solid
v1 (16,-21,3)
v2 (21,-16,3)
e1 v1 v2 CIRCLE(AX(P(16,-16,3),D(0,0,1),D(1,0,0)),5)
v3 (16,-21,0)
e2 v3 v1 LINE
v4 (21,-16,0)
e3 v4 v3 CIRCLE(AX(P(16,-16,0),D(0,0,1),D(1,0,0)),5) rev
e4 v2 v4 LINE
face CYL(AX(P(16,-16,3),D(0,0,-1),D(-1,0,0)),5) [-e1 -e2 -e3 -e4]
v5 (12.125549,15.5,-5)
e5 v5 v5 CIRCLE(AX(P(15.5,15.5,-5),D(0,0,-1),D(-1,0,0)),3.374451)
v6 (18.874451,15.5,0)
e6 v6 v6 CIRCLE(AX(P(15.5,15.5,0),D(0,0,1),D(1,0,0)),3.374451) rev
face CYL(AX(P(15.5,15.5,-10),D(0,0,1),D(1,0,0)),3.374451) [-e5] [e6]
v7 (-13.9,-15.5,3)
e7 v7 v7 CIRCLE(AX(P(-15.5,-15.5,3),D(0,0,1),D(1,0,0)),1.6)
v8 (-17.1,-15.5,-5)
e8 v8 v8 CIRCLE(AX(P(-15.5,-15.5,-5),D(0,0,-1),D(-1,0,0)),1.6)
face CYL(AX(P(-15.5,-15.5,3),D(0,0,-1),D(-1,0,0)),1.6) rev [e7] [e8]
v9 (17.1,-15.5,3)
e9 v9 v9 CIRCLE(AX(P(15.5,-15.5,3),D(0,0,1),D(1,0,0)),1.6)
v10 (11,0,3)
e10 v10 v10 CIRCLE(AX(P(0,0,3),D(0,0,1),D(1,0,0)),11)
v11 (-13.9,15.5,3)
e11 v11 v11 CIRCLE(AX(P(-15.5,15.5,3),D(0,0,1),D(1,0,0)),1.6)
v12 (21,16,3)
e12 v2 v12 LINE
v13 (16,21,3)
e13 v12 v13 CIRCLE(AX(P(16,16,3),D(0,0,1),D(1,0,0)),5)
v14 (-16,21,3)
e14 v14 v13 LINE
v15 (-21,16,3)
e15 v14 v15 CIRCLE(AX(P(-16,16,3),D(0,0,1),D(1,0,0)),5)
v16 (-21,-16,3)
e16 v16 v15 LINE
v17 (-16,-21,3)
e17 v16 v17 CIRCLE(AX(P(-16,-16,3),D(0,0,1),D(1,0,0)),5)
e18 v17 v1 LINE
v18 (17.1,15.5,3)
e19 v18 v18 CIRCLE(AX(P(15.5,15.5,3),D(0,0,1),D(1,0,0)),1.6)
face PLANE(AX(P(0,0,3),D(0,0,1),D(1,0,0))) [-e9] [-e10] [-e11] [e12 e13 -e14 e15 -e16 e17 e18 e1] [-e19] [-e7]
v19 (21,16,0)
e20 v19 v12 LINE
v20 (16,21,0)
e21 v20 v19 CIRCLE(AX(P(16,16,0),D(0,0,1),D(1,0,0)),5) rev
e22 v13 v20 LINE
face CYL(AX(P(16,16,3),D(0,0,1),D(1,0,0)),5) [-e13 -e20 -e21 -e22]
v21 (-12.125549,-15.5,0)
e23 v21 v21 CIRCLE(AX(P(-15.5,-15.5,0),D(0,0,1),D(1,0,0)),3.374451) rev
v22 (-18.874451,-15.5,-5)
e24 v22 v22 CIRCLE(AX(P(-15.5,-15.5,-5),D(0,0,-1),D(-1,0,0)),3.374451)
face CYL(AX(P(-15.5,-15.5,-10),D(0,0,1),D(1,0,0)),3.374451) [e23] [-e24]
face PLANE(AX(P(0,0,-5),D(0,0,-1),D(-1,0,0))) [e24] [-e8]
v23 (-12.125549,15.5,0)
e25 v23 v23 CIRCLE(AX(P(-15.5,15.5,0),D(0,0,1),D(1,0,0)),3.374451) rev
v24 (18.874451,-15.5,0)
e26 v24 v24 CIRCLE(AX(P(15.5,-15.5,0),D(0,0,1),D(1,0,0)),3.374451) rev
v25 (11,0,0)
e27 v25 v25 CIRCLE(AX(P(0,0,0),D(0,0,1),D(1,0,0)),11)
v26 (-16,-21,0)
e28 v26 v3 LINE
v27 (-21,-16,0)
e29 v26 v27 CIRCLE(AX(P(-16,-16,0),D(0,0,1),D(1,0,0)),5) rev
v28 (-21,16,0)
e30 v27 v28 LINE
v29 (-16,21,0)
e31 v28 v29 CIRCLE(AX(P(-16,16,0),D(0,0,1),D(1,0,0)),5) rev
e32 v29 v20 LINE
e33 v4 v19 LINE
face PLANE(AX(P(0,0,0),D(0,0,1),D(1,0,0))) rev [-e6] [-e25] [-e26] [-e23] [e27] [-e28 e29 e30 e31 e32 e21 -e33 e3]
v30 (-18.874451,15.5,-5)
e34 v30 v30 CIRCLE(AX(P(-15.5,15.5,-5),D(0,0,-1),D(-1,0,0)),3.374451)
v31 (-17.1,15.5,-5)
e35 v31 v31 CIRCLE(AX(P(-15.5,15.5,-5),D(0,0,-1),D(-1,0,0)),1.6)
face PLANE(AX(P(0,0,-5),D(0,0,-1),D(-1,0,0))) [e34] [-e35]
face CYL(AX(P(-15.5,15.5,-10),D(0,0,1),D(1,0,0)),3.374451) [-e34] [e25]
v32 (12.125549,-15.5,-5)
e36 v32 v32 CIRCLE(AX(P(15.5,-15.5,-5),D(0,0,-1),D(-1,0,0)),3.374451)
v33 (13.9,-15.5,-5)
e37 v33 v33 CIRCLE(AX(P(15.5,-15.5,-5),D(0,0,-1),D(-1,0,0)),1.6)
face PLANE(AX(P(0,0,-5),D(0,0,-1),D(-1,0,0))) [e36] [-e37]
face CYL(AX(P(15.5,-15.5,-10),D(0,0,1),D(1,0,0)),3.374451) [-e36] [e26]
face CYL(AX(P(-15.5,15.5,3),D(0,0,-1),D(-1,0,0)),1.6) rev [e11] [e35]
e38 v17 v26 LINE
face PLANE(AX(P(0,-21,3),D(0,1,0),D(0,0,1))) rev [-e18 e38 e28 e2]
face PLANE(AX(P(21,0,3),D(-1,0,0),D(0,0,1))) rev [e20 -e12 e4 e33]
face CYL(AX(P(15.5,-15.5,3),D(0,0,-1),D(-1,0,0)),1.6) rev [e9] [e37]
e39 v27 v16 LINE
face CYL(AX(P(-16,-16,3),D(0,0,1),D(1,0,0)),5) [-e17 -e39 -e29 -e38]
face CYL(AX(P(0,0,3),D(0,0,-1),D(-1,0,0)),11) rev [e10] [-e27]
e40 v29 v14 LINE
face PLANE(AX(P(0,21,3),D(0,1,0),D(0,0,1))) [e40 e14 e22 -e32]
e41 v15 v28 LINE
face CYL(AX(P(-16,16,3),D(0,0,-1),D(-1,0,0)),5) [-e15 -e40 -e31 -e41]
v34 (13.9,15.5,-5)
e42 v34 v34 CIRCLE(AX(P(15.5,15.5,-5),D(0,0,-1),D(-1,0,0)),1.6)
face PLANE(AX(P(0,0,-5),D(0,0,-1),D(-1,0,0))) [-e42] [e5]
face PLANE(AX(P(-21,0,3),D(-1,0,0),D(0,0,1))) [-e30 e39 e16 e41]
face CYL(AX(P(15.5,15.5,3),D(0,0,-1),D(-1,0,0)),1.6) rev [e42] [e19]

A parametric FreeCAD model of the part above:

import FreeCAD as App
import Part
import Sketcher
Q = App.Units.Quantity


def edges_at(feature, points):
    """Names of the edges that pass closest to the given points."""
    edges = feature.Shape.Edges
    near = lambda p: min(range(len(edges)), key=lambda i: edges[i].distToShape(Part.Vertex(*p))[0])
    return sorted({f"Edge{near(p) + 1}" for p in points})

doc = App.newDocument("Part")
params = doc.addObject("Spreadsheet::Sheet", "Params")
for row, (alias, value) in enumerate([
    ("sketch1_diameter", "22 mm"),
    ("sketch1_diameter2", "3.2 mm"),
    ("sketch1_width", "42 mm"),
    ("pad1_length", "3 mm"),
    ("fillet_radius", "5 mm"),
    ("sketch2_diameter", "36 mm"),
    ("sketch2_diameter2", "32 mm"),
    ("pad2_length", "7 mm"),
    ("sketch3_diameter", "36 mm"),
    ("sketch4_diameter", "3.2 mm"),
    ("pad3_length", "10 mm"),
    ("pocket2_length", "5 mm"),
], start=1):
    params.set(f"A{row}", alias)
    params.set(f"B{row}", "=" + value)
    params.setAlias(f"B{row}", alias)

body = doc.addObject("PartDesign::Body", "Body")

# Sketch on XY plane
sketch1 = body.newObject("Sketcher::SketchObject", "Sketch")
sketch1.AttachmentSupport = (doc.getObject("XY_Plane"), [""])
sketch1.MapMode = "FlatFace"
sketch1.addGeometry([
    Part.LineSegment(App.Vector(-21, 21, 0), App.Vector(-21, -21, 0)),  # 0
    Part.LineSegment(App.Vector(-21, -21, 0), App.Vector(21, -21, 0)),  # 1
    Part.LineSegment(App.Vector(21, -21, 0), App.Vector(21, 21, 0)),  # 2
    Part.LineSegment(App.Vector(21, 21, 0), App.Vector(-21, 21, 0)),  # 3
    Part.Circle(App.Vector(-15.5, -15.5, 0), App.Vector(0, 0, 1), 1.6),  # 4
    Part.Circle(App.Vector(15.5, -15.5, 0), App.Vector(0, 0, 1), 1.6),  # 5
    Part.Circle(App.Vector(-15.5, 15.5, 0), App.Vector(0, 0, 1), 1.6),  # 6
    Part.Circle(App.Vector(0, 0, 0), App.Vector(0, 0, 1), 11),  # 7
    Part.Circle(App.Vector(15.5, 15.5, 0), App.Vector(0, 0, 1), 1.6),  # 8
], False)
sketch1.addConstraint([
    Sketcher.Constraint("Coincident", 0, 2, 1, 1),
    Sketcher.Constraint("Coincident", 1, 2, 2, 1),
    Sketcher.Constraint("Coincident", 2, 2, 3, 1),
    Sketcher.Constraint("Coincident", 3, 2, 0, 1),
    Sketcher.Constraint("Vertical", 0),
    Sketcher.Constraint("Horizontal", 1),
    Sketcher.Constraint("Vertical", 2),
    Sketcher.Constraint("Horizontal", 3),
    Sketcher.Constraint("Coincident", 7, 3, -1, 1),
    Sketcher.Constraint("Equal", 4, 5),
    Sketcher.Constraint("Equal", 5, 6),
    Sketcher.Constraint("Equal", 6, 8),
    Sketcher.Constraint("Symmetric", 5, 3, 6, 3, -1, 1),
    Sketcher.Constraint("Symmetric", 4, 3, 8, 3, -1, 1),
    Sketcher.Constraint("Symmetric", 0, 2, 2, 2, -1, 1),
    Sketcher.Constraint("Symmetric", 4, 3, 5, 3, -2),
    Sketcher.Constraint("Equal", 3, 0),
    Sketcher.Constraint("Diameter", 7, Q("22 mm")),
    Sketcher.Constraint("Diameter", 4, Q("3.2 mm")),
    Sketcher.Constraint("DistanceX", 1, 1, 1, 2, Q("42 mm")),
    Sketcher.Constraint("DistanceX", 4, 3, 5, 3, Q("31 mm")),
    Sketcher.Constraint("DistanceY", 4, 3, 6, 3, Q("31 mm")),
])
sketch1.setExpression("Constraints[17]", "Params.sketch1_diameter")
sketch1.setExpression("Constraints[18]", "Params.sketch1_diameter2")
sketch1.setExpression("Constraints[19]", "Params.sketch1_width")
pad1 = body.newObject("PartDesign::Pad", "Pad")
pad1.Profile = sketch1
pad1.setExpression("Length", "Params.pad1_length")
doc.recompute()

fillet = body.newObject("PartDesign::Fillet", "Fillet")
fillet.Base = (pad1, edges_at(pad1, [
    (-21, -21, 1.5),
    (-21, 21, 1.5),
    (21, 21, 1.5),
    (21, -21, 1.5),
]))
fillet.setExpression("Radius", "Params.fillet_radius")

# Sketch on XY plane
sketch2 = body.newObject("Sketcher::SketchObject", "Sketch001")
sketch2.AttachmentSupport = (doc.getObject("XY_Plane"), [""])
sketch2.MapMode = "FlatFace"
sketch2.addGeometry([
    Part.Circle(App.Vector(0, 0, 0), App.Vector(0, 0, 1), 18),
    Part.Circle(App.Vector(0, 0, 0), App.Vector(0, 0, 1), 16),
], False)
sketch2.addConstraint([
    Sketcher.Constraint("Coincident", 0, 3, -1, 1),
    Sketcher.Constraint("Coincident", 1, 3, -1, 1),
    Sketcher.Constraint("Diameter", 0, Q("36 mm")),
    Sketcher.Constraint("Diameter", 1, Q("32 mm")),
])
sketch2.setExpression("Constraints[2]", "Params.sketch2_diameter")
sketch2.setExpression("Constraints[3]", "Params.sketch2_diameter2")
pad2 = body.newObject("PartDesign::Pad", "Pad001")
pad2.Profile = sketch2
pad2.setExpression("Length", "Params.pad2_length")
pad2.Reversed = True

# Sketch on XY plane
sketch3 = body.newObject("Sketcher::SketchObject", "Sketch002")
sketch3.AttachmentSupport = (doc.getObject("XY_Plane"), [""])
sketch3.MapMode = "FlatFace"
sketch3.addGeometry(Part.Circle(App.Vector(0, 0, 0), App.Vector(0, 0, 1), 18), False)
sketch3.addConstraint([
    Sketcher.Constraint("Coincident", 0, 3, -1, 1),
    Sketcher.Constraint("Diameter", 0, Q("36 mm")),
])
sketch3.setExpression("Constraints[1]", "Params.sketch3_diameter")
pocket1 = body.newObject("PartDesign::Pocket", "Pocket")
pocket1.Profile = sketch3
pocket1.Type = "ThroughAll"

# Sketch on XY plane
sketch4 = body.newObject("Sketcher::SketchObject", "Sketch003")
sketch4.AttachmentSupport = (doc.getObject("XY_Plane"), [""])
sketch4.MapMode = "FlatFace"
sketch4.AttachmentOffset = App.Placement(App.Vector(0, 0, -10), App.Rotation())
sketch4.addGeometry([
    Part.Circle(App.Vector(15.5, 15.5, 0), App.Vector(0, 0, 1), 3.4),  # 0
    Part.Circle(App.Vector(15.5, 15.5, 0), App.Vector(0, 0, 1), 1.6),  # 1
    Part.Circle(App.Vector(-15.5, 15.5, 0), App.Vector(0, 0, 1), 3.4),  # 2
    Part.Circle(App.Vector(-15.5, 15.5, 0), App.Vector(0, 0, 1), 1.6),  # 3
    Part.Circle(App.Vector(-15.5, -15.5, 0), App.Vector(0, 0, 1), 3.4),  # 4
    Part.Circle(App.Vector(-15.5, -15.5, 0), App.Vector(0, 0, 1), 1.6),  # 5
    Part.Circle(App.Vector(15.5, -15.5, 0), App.Vector(0, 0, 1), 3.4),  # 6
    Part.Circle(App.Vector(15.5, -15.5, 0), App.Vector(0, 0, 1), 1.6),  # 7
], False)
sketch4.addConstraint([
    Sketcher.Constraint("Coincident", 1, 3, 0, 3),
    Sketcher.Constraint("Coincident", 3, 3, 2, 3),
    Sketcher.Constraint("Coincident", 5, 3, 4, 3),
    Sketcher.Constraint("Coincident", 7, 3, 6, 3),
    Sketcher.Constraint("Equal", 0, 2),
    Sketcher.Constraint("Equal", 1, 3),
    Sketcher.Constraint("Equal", 2, 4),
    Sketcher.Constraint("Equal", 3, 5),
    Sketcher.Constraint("Equal", 4, 6),
    Sketcher.Constraint("Equal", 5, 7),
    Sketcher.Constraint("Symmetric", 0, 3, 4, 3, -1, 1),
    Sketcher.Constraint("Symmetric", 2, 3, 6, 3, -1, 1),
    Sketcher.Constraint("Symmetric", 0, 3, 2, 3, -2),
    Sketcher.Constraint("Diameter", 1, Q("3.2 mm")),
    Sketcher.Constraint("DistanceX", 2, 3, 0, 3, Q("31 mm")),
    Sketcher.Constraint("DistanceY", 4, 3, 2, 3, Q("31 mm")),
    Sketcher.Constraint("Diameter", 0, Q("6.748903 mm")),
])
sketch4.setExpression("Constraints[13]", "Params.sketch4_diameter")
pad3 = body.newObject("PartDesign::Pad", "Pad002")
pad3.Profile = sketch4
pad3.setExpression("Length", "Params.pad3_length")

# Sketch on XY plane
sketch5 = body.newObject("Sketcher::SketchObject", "Sketch004")
sketch5.AttachmentSupport = (doc.getObject("XY_Plane"), [""])
sketch5.MapMode = "FlatFace"
sketch5.AttachmentOffset = App.Placement(App.Vector(0, 0, -10), App.Rotation())
sketch5.addGeometry(Part.Circle(App.Vector(0, 0, 0), App.Vector(0, 0, 1), 30), False)
sketch5.addConstraint([
    Sketcher.Constraint("Coincident", 0, 3, -1, 1),
    Sketcher.Constraint("Diameter", 0, Q("59.977193 mm")),
])
pocket2 = body.newObject("PartDesign::Pocket", "Pocket001")
pocket2.Profile = sketch5
pocket2.setExpression("Length", "Params.pocket2_length")
pocket2.Reversed = True

doc.recompute()
